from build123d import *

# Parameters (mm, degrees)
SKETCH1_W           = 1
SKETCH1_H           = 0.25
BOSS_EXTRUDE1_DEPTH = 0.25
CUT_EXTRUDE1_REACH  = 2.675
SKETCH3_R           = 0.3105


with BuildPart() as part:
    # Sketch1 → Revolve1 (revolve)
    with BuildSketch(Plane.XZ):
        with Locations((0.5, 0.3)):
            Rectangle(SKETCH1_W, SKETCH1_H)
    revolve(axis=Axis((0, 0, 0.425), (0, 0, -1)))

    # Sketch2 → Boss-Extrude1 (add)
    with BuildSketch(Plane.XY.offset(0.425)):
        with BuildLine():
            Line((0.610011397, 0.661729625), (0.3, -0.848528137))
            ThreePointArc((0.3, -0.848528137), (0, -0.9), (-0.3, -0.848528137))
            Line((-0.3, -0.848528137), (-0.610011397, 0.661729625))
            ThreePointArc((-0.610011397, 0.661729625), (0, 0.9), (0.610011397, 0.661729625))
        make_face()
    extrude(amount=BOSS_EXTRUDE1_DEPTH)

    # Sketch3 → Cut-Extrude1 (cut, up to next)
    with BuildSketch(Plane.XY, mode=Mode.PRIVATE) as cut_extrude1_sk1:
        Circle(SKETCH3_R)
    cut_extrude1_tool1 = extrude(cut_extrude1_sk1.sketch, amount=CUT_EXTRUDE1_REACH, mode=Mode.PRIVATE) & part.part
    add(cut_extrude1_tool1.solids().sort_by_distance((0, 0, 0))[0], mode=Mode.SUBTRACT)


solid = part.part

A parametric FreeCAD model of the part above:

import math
import FreeCAD as App
import Part
import Sketcher
from FreeCAD import Vector
Q = App.Units.Quantity

doc = App.newDocument("Part")
params = doc.addObject("Spreadsheet::Sheet", "Params")
for row, (alias, value) in enumerate([
    ("sketch1_width", "1 mm"),
    ("sketch1_height", "0.25 mm"),
    ("revolution_angle", "360 deg"),
    ("sketch2_radius", "0.9 mm"),
    ("pad1_length", "0.25 mm"),
    ("pocket1_length", "0.675 mm"),
], start=1):
    params.set(f"A{row}", alias)
    params.set(f"B{row}", "=" + value)
    params.setAlias(f"B{row}", alias)

body = doc.addObject("PartDesign::Body", "Body")

# Sketch on XZ plane
sketch1 = body.newObject("Sketcher::SketchObject", "Sketch")
sketch1.AttachmentSupport = (doc.getObject("XZ_Plane"), [""])
sketch1.MapMode = "FlatFace"
sketch1.addGeometry(Part.LineSegment(Vector(0, 0.42, 0), Vector(0, 0.17, 0)), False)
sketch1.addGeometry(Part.LineSegment(Vector(0, 0.17, 0), Vector(1, 0.17, 0)), False)
sketch1.addGeometry(Part.LineSegment(Vector(1, 0.17, 0), Vector(1, 0.42, 0)), False)
sketch1.addGeometry(Part.LineSegment(Vector(1, 0.42, 0), Vector(0, 0.42, 0)), False)
sketch1.addConstraint(Sketcher.Constraint("Coincident", 0, 2, 1, 1))
sketch1.addConstraint(Sketcher.Constraint("Coincident", 1, 2, 2, 1))
sketch1.addConstraint(Sketcher.Constraint("Coincident", 2, 2, 3, 1))
sketch1.addConstraint(Sketcher.Constraint("Coincident", 3, 2, 0, 1))
sketch1.addConstraint(Sketcher.Constraint("Vertical", 0))
sketch1.addConstraint(Sketcher.Constraint("Horizontal", 1))
sketch1.addConstraint(Sketcher.Constraint("Vertical", 2))
sketch1.addConstraint(Sketcher.Constraint("Horizontal", 3))
sketch1.addConstraint(Sketcher.Constraint("PointOnObject", 0, 2, -2))
sketch1.addConstraint(Sketcher.Constraint("DistanceX", 1, 1, 1, 2, Q("1 mm")))
sketch1.addConstraint(Sketcher.Constraint("DistanceY", 0, 2, 0, 1, Q("0.25 mm")))
sketch1.addConstraint(Sketcher.Constraint("DistanceY", -1, 1, 0, 2, Q("0.175 mm")))
sketch1.setExpression("Constraints[9]", "Params.sketch1_width")
sketch1.setExpression("Constraints[10]", "Params.sketch1_height")
revolution = body.newObject("PartDesign::Revolution", "Revolution")
revolution.Profile = sketch1
revolution.ReferenceAxis = (sketch1, ["V_Axis"])
revolution.setExpression("Angle", "Params.revolution_angle")

# Sketch on XY plane
sketch2 = body.newObject("Sketcher::SketchObject", "Sketch001")
sketch2.AttachmentSupport = (doc.getObject("XY_Plane"), [""])
sketch2.MapMode = "FlatFace"
sketch2.AttachmentOffset = App.Placement(Vector(0, 0, 0.425), App.Rotation())
sketch2.addGeometry(Part.LineSegment(Vector(0.3, -0.8, 0), Vector(0.6, 0.7, 0)), False)
sketch2.addGeometry(Part.ArcOfCircle(Part.Circle(Vector(0, 0, 0), Vector(0, 0, 1), 0.9), math.radians(47), math.radians(133)), False)
sketch2.addGeometry(Part.LineSegment(Vector(-0.6, 0.7, 0), Vector(-0.3, -0.8, 0)), False)
sketch2.addGeometry(Part.ArcOfCircle(Part.Circle(Vector(0, 0, 0), Vector(0, 0, 1), 0.9), math.radians(-109), math.radians(-71)), False)
sketch2.addConstraint(Sketcher.Constraint("Coincident", 0, 2, 1, 1))
sketch2.addConstraint(Sketcher.Constraint("Coincident", 1, 2, 2, 1))
sketch2.addConstraint(Sketcher.Constraint("Coincident", 2, 2, 3, 1))
sketch2.addConstraint(Sketcher.Constraint("Coincident", 3, 2, 0, 1))
sketch2.addConstraint(Sketcher.Constraint("Coincident", 1, 3, -1, 1))
sketch2.addConstraint(Sketcher.Constraint("Coincident", 3, 3, -1, 1))
sketch2.addConstraint(Sketcher.Constraint("Equal", 1, 3))
sketch2.addConstraint(Sketcher.Constraint("Horizontal", 0, 2, 1, 2))
sketch2.addConstraint(Sketcher.Constraint("Horizontal", 2, 2, 3, 2))
sketch2.addConstraint(Sketcher.Constraint("Radius", 1, Q("0.9 mm")))
sketch2.addConstraint(Sketcher.Constraint("Angle", 0, Q("78.4 deg")))
sketch2.addConstraint(Sketcher.Constraint("DistanceX", 2, 2, -1, 1, Q("0.3 mm")))
sketch2.setExpression("Constraints[9]", "Params.sketch2_radius")
pad1 = body.newObject("PartDesign::Pad", "Pad")
pad1.Profile = sketch2
pad1.setExpression("Length", "Params.pad1_length")

# Sketch on XY plane
sketch3 = body.newObject("Sketcher::SketchObject", "Sketch002")
sketch3.AttachmentSupport = (doc.getObject("XY_Plane"), [""])
sketch3.MapMode = "FlatFace"
sketch3.addGeometry(Part.Circle(Vector(0, 0, 0), Vector(0, 0, 1), 0.31), False)
sketch3.addConstraint(Sketcher.Constraint("Coincident", 0, 3, -1, 1))
sketch3.addConstraint(Sketcher.Constraint("Diameter", 0, Q("0.621 mm")))
pocket1 = body.newObject("PartDesign::Pocket", "Pocket")
pocket1.Profile = sketch3
pocket1.setExpression("Length", "Params.pocket1_length")
pocket1.Reversed = True

doc.recompute()
